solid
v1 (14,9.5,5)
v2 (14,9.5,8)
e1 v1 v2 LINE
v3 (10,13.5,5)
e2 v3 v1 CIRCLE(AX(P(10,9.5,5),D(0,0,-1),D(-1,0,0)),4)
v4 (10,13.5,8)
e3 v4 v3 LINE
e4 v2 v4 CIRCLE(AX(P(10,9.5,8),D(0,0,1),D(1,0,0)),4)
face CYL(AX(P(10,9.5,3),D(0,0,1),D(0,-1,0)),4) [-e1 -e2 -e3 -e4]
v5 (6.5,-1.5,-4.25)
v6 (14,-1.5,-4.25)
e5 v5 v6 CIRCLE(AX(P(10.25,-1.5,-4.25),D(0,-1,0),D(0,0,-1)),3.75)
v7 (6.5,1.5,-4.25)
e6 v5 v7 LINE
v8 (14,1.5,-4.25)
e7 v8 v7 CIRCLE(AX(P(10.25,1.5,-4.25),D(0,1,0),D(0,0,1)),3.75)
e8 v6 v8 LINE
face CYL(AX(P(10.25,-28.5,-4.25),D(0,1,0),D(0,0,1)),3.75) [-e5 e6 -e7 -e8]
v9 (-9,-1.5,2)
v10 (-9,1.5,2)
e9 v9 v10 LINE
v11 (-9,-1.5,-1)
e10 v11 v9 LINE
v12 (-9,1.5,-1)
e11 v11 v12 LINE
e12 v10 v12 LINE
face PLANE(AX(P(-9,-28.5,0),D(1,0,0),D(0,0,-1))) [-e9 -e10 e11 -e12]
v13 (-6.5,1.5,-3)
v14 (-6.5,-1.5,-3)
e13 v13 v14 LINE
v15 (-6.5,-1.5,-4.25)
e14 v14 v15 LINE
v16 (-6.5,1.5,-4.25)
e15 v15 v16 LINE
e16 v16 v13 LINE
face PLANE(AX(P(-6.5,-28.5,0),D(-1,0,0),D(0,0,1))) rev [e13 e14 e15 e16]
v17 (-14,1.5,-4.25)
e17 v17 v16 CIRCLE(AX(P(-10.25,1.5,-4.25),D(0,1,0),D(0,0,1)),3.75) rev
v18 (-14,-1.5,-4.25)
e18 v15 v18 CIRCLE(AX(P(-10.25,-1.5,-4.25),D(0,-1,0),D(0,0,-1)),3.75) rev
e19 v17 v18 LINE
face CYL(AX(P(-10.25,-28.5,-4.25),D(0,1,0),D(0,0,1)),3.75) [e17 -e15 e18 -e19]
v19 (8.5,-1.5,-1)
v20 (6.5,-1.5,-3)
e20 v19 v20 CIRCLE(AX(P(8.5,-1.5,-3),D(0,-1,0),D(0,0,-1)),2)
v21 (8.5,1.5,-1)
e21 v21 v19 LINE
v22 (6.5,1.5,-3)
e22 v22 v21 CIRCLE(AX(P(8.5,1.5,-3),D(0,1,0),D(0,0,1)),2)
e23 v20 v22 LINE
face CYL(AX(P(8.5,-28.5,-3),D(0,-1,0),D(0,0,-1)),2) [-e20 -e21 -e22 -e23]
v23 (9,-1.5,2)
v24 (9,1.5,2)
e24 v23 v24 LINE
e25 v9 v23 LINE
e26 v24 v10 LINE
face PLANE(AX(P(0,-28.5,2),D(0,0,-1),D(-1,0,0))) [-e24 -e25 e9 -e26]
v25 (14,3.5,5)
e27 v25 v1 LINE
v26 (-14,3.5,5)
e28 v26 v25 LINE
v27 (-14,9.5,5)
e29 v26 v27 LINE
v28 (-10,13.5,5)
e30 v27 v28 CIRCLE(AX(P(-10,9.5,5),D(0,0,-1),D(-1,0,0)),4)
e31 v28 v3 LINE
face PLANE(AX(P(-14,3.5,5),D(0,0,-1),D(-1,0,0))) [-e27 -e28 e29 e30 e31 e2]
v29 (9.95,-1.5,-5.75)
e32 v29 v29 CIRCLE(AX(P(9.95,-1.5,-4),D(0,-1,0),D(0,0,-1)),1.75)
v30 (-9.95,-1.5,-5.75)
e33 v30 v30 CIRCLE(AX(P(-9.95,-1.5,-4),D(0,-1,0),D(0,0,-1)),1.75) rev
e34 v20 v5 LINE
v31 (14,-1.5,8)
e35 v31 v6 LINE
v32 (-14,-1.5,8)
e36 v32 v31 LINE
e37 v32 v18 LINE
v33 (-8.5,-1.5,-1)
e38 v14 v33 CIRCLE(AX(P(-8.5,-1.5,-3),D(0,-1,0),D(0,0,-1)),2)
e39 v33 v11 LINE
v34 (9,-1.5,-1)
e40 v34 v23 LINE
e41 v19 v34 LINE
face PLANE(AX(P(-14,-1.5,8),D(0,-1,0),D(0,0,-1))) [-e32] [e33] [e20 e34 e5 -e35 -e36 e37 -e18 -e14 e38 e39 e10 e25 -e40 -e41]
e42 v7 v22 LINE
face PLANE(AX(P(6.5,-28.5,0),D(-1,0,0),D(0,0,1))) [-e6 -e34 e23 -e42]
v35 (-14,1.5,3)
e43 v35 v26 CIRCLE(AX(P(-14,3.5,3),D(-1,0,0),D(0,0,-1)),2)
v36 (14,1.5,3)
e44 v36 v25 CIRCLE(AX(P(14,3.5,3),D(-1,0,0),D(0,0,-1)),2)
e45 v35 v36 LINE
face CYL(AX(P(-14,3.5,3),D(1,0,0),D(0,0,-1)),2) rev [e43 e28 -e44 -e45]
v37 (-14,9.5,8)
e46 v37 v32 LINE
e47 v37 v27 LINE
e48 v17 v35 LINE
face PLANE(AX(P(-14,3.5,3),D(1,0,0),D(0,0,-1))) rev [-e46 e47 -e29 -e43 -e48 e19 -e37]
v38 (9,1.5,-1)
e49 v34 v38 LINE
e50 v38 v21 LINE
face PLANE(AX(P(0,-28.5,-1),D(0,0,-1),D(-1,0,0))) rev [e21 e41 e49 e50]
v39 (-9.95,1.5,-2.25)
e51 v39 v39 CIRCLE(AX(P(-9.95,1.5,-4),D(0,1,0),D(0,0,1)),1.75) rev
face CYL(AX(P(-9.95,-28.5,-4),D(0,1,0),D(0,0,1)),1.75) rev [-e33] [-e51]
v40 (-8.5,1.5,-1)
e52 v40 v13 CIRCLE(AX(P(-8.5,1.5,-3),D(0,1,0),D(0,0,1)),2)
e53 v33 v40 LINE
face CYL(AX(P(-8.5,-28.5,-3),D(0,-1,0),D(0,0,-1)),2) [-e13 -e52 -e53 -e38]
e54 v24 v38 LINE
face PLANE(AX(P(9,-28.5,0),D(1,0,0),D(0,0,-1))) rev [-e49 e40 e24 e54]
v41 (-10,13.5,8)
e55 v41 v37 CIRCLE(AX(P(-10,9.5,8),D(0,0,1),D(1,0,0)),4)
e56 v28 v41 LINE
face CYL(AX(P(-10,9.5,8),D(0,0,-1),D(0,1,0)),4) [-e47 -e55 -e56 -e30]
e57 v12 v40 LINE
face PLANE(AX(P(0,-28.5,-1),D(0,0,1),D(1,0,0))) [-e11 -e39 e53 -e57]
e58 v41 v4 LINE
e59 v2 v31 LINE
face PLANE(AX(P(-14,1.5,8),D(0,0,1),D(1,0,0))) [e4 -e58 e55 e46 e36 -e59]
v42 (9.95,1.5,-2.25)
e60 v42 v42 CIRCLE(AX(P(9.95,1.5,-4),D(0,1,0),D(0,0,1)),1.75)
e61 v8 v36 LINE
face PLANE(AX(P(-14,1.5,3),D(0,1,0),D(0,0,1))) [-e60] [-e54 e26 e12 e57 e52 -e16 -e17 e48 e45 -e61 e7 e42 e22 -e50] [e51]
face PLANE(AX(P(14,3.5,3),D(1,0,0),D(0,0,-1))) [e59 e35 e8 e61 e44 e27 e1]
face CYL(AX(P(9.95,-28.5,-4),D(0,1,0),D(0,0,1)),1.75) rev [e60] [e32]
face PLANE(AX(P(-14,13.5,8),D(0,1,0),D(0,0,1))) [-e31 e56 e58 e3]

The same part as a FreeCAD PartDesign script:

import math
import FreeCAD as App
import Part
import Sketcher
from FreeCAD import Vector
Q = App.Units.Quantity


def edges_at(feature, points):
    """Names of the edges that pass closest to the given points."""
    edges = feature.Shape.Edges
    near = lambda p: min(range(len(edges)), key=lambda i: edges[i].distToShape(Part.Vertex(*p))[0])
    return sorted({f"Edge{near(p) + 1}" for p in points})

doc = App.newDocument("Part")
body = doc.addObject("PartDesign::Body", "Body")

sketch1 = doc.addObject("Sketcher::SketchObject", "Sketch")
body.addObject(sketch1)
sketch1.AttachmentSupport = (doc.YZ_Plane, [""])
sketch1.MapMode = "FlatFace"
sketch1.addGeometry([
    Part.LineSegment(Vector(1.5, -8, 0), Vector(1.5, 3, 0)),
    Part.ArcOfCircle(Part.Circle(Vector(3.5, 3, 0), Vector(0, 0, 1), 2), math.radians(90), math.radians(180)),
    Part.LineSegment(Vector(3.5, 5, 0), Vector(13.5, 5, 0)),
    Part.LineSegment(Vector(13.5, 5, 0), Vector(13.5, 8, 0)),
    Part.LineSegment(Vector(13.5, 8, 0), Vector(-1.5, 8, 0)),
    Part.LineSegment(Vector(-1.5, 8, 0), Vector(-1.5, -8, 0)),
    Part.LineSegment(Vector(-1.5, -8, 0), Vector(1.5, -8, 0)),
], False)
sketch1.addConstraint([
    Sketcher.Constraint("Tangent", 0, 2, 1, 2),
    Sketcher.Constraint("Tangent", 1, 1, 2, 1),
    Sketcher.Constraint("Coincident", 2, 2, 3, 1),
    Sketcher.Constraint("Coincident", 3, 2, 4, 1),
    Sketcher.Constraint("Coincident", 4, 2, 5, 1),
    Sketcher.Constraint("Coincident", 5, 2, 6, 1),
    Sketcher.Constraint("Coincident", 6, 2, 0, 1),
    Sketcher.Constraint("Vertical", 0),
    Sketcher.Constraint("Horizontal", 2),
    Sketcher.Constraint("Vertical", 3),
    Sketcher.Constraint("Horizontal", 4),
    Sketcher.Constraint("Vertical", 5),
    Sketcher.Constraint("Horizontal", 6),
    Sketcher.Constraint("Symmetric", 4, 2, 6, 2, -1, 1),
    Sketcher.Constraint("Equal", 6, 3),
    Sketcher.Constraint("Radius", 1, Q("2 mm")),
    Sketcher.Constraint("DistanceX", 2, 1, 2, 2, Q("10 mm")),
    Sketcher.Constraint("DistanceX", 4, 2, 4, 1, Q("15 mm")),
    Sketcher.Constraint("DistanceY", 0, 1, 0, 2, Q("11 mm")),
])
pad1 = doc.addObject("PartDesign::Pad", "Pad")
body.addObject(pad1)
pad1.Profile = sketch1
pad1.Length = 28
pad1.Midplane = True

sketch2 = doc.addObject("Sketcher::SketchObject", "Sketch001")
body.addObject(sketch2)
sketch2.AttachmentSupport = (doc.XZ_Plane, [""])
sketch2.MapMode = "FlatFace"
sketch2.AttachmentOffset = App.Placement(Vector(0, 0, -1.5), App.Rotation())
sketch2.addGeometry([
    Part.LineSegment(Vector(-9, 2, 0), Vector(9, 2, 0)),
    Part.LineSegment(Vector(9, 2, 0), Vector(9, -1, 0)),
    Part.LineSegment(Vector(9, -1, 0), Vector(6.5, -1, 0)),
    Part.LineSegment(Vector(6.5, -1, 0), Vector(6.5, -4.2, 0)),
    Part.ArcOfCircle(Part.Circle(Vector(10.2, -4.2, 0), Vector(0, 0, 1), 3.8), math.radians(180), math.radians(270)),
    Part.LineSegment(Vector(10.3, -8, 0), Vector(-10.2, -8, 0)),
    Part.ArcOfCircle(Part.Circle(Vector(-10.2, -4.2, 0), Vector(0, 0, 1), 3.8), math.radians(-90), math.radians(0)),
    Part.LineSegment(Vector(-6.5, -4.2, 0), Vector(-6.5, -1, 0)),
    Part.LineSegment(Vector(-6.5, -1, 0), Vector(-9, -1, 0)),
    Part.LineSegment(Vector(-9, -1, 0), Vector(-9, 2, 0)),
    Part.LineSegment(Vector(14, -8, 0), Vector(10.3, -8, 0)),
    Part.ArcOfCircle(Part.Circle(Vector(10.2, -4.2, 0), Vector(0, 0, 1), 3.8), math.radians(-90), math.radians(0)),
    Part.LineSegment(Vector(14, -4.2, 0), Vector(14, -8, 0)),
    Part.ArcOfCircle(Part.Circle(Vector(-10.2, -4.2, 0), Vector(0, 0, 1), 3.8), math.radians(180), math.radians(270)),
    Part.LineSegment(Vector(-10.2, -8, 0), Vector(-14, -8, 0)),
    Part.LineSegment(Vector(-14, -8, 0), Vector(-14, -4.2, 0)),
    Part.Circle(Vector(9.9, -4, 0), Vector(0, 0, 1), 1.8),
    Part.Circle(Vector(-9.9, -4, 0), Vector(0, 0, 1), 1.8),
], False)
sketch2.addConstraint([
    Sketcher.Constraint("Coincident", 0, 2, 1, 1),
    Sketcher.Constraint("Coincident", 1, 2, 2, 1),
    Sketcher.Constraint("Coincident", 2, 2, 3, 1),
    Sketcher.Constraint("Tangent", 3, 2, 4, 1),
    Sketcher.Constraint("Tangent", 4, 2, 5, 1),
    Sketcher.Constraint("Tangent", 5, 2, 6, 1),
    Sketcher.Constraint("Tangent", 6, 2, 7, 1),
    Sketcher.Constraint("Coincident", 7, 2, 8, 1),
    Sketcher.Constraint("Coincident", 8, 2, 9, 1),
    Sketcher.Constraint("Coincident", 9, 2, 0, 1),
    Sketcher.Constraint("Tangent", 10, 2, 11, 1),
    Sketcher.Constraint("Tangent", 11, 2, 12, 1),
    Sketcher.Constraint("Coincident", 12, 2, 10, 1),
    Sketcher.Constraint("Tangent", 13, 2, 14, 1),
    Sketcher.Constraint("Coincident", 14, 2, 15, 1),
    Sketcher.Constraint("Tangent", 15, 2, 13, 1),
    Sketcher.Constraint("Horizontal", 0),
    Sketcher.Constraint("Vertical", 1),
    Sketcher.Constraint("Horizontal", 2),
    Sketcher.Constraint("Vertical", 3),
    Sketcher.Constraint("Horizontal", 5),
    Sketcher.Constraint("Vertical", 7),
    Sketcher.Constraint("Horizontal", 8),
    Sketcher.Constraint("Vertical", 9),
    Sketcher.Constraint("Horizontal", 10),
    Sketcher.Constraint("Vertical", 12),
    Sketcher.Constraint("Horizontal", 14),
    Sketcher.Constraint("Vertical", 15),
    Sketcher.Constraint("Coincident", 11, 3, 4, 3),
    Sketcher.Constraint("Coincident", 13, 3, 6, 3),
    Sketcher.Constraint("Equal", 4, 6),
    Sketcher.Constraint("Equal", 6, 11),
    Sketcher.Constraint("Equal", 11, 13),
    Sketcher.Constraint("Equal", 16, 17),
    Sketcher.Constraint("Symmetric", 16, 3, 17, 3, -2),
    Sketcher.Constraint("Symmetric", 2, 2, 7, 2, -2),
    Sketcher.Constraint("Equal", 2, 8),
    Sketcher.Constraint("Diameter", 16, Q("3.5 mm")),
    Sketcher.Constraint("DistanceX", 0, 1, 0, 2, Q("18 mm")),
    Sketcher.Constraint("DistanceY", 1, 2, 1, 1, Q("3 mm")),
    Sketcher.Constraint("Radius", 4, Q("3.75 mm")),
    Sketcher.Constraint("DistanceX", 2, 2, 2, 1, Q("2.5 mm")),
    Sketcher.Constraint("DistanceY", 16, 3, -1, 1, Q("4 mm")),
    Sketcher.Constraint("DistanceY", -1, 1, 0, 2, Q("2 mm")),
    Sketcher.Constraint("DistanceY", 4, 2, -1, 1, Q("8 mm")),
    Sketcher.Constraint("DistanceX", 16, 3, 4, 3, Q("0.3 mm")),
])
pocket1 = doc.addObject("PartDesign::Pocket", "Pocket")
body.addObject(pocket1)
pocket1.Profile = sketch2
pocket1.Length = 30
pocket1.Reversed = True
doc.recompute()

fillet = doc.addObject("PartDesign::Fillet", "Fillet")
body.addObject(fillet)
fillet.Base = (pocket1, edges_at(pocket1, [(-14, 13.5, 6.5), (14, 13.5, 6.5)]))
fillet.Radius = 4
doc.recompute()

fillet2 = doc.addObject("PartDesign::Fillet", "Fillet001")
body.addObject(fillet2)
fillet2.Base = (fillet, edges_at(fillet, [(6.5, 0, -1), (-6.5, 0, -1)]))
fillet2.Radius = 2

doc.recompute()
